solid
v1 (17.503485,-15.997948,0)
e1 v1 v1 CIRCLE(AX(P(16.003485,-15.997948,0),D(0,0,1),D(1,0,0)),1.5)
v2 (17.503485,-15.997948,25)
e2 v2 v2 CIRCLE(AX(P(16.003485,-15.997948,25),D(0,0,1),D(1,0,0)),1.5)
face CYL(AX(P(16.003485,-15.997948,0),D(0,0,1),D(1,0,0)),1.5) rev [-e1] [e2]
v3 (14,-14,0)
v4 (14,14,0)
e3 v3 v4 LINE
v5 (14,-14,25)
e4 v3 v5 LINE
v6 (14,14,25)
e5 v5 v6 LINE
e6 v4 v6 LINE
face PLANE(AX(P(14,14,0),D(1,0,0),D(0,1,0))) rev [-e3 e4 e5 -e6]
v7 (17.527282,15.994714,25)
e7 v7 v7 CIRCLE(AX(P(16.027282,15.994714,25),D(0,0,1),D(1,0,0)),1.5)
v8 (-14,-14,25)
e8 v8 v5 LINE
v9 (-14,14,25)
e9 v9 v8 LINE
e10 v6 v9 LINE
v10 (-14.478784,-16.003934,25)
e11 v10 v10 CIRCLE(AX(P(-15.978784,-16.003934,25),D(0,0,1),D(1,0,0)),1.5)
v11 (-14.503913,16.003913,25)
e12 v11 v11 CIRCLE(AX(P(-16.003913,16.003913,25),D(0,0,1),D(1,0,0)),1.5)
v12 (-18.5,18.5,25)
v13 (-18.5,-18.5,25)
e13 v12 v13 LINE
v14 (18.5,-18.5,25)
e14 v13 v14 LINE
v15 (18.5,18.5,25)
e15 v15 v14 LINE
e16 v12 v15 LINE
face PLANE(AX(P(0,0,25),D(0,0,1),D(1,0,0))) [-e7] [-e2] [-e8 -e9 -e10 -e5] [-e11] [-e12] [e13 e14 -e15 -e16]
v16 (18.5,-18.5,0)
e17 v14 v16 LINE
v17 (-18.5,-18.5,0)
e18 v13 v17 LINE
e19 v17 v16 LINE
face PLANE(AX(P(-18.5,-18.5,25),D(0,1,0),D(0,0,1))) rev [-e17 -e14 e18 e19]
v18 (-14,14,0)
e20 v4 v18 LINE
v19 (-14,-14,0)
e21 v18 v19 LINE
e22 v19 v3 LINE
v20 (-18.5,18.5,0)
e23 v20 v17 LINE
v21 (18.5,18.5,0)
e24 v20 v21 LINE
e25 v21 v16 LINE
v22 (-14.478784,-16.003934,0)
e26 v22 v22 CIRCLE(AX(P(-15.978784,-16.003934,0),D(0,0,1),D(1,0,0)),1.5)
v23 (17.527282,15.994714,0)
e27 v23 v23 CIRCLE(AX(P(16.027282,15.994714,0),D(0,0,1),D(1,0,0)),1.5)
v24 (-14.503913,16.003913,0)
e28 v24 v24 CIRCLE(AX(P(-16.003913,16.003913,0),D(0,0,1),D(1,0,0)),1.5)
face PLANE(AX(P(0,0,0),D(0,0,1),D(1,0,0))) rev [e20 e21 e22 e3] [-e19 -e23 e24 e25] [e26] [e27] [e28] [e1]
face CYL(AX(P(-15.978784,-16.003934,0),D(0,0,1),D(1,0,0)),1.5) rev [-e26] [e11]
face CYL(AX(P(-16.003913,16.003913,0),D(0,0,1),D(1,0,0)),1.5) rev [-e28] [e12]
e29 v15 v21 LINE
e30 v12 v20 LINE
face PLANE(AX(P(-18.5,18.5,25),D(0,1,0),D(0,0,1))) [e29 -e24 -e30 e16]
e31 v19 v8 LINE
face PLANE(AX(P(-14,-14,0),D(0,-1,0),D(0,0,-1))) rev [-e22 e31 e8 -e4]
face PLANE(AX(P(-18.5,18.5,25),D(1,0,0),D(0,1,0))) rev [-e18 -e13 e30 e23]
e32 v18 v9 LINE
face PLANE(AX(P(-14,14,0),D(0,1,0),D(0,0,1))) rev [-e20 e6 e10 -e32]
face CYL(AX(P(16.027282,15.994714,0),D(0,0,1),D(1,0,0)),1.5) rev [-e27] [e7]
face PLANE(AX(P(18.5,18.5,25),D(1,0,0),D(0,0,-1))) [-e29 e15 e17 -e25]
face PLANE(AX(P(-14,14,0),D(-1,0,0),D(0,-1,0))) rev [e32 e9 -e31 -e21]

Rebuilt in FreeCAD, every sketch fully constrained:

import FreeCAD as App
import Part
import Sketcher

V = App.Vector


def add_polygon(sketch, points):
    """Adds a closed chain of lines whose ends are joined by coincident constraints."""
    first, n = sketch.GeometryCount, len(points)
    for a, b in zip(points, points[1:] + points[:1]):
        sketch.addGeometry(Part.LineSegment(App.Vector(*a, 0), App.Vector(*b, 0)), False)
    for i in range(n):
        sketch.addConstraint(Sketcher.Constraint("Coincident", first + i, 2, first + (i + 1) % n, 1))

doc = App.newDocument("Part")
body = doc.addObject("PartDesign::Body", "Body")

sketch1 = doc.addObject("Sketcher::SketchObject", "Sketch")
body.addObject(sketch1)
sketch1.AttachmentSupport = (doc.XY_Plane, [""])
sketch1.MapMode = "FlatFace"
add_polygon(sketch1, [(-18, 18), (-18, -18), (18, -18), (18, 18)])
sketch1.addConstraint(Sketcher.Constraint("Vertical", 0))
sketch1.addConstraint(Sketcher.Constraint("Horizontal", 1))
sketch1.addConstraint(Sketcher.Constraint("Vertical", 2))
sketch1.addConstraint(Sketcher.Constraint("Horizontal", 3))
sketch1.addConstraint(Sketcher.Constraint("Symmetric", 0, 2, 2, 2, -1, 1))
sketch1.addConstraint(Sketcher.Constraint("Equal", 3, 0))
sketch1.addConstraint(Sketcher.Constraint("DistanceX", 1, 1, 1, 2, 37.0))
pad1 = doc.addObject("PartDesign::Pad", "Pad")
body.addObject(pad1)
pad1.Profile = sketch1
pad1.Length = 25

sketch2 = doc.addObject("Sketcher::SketchObject", "Sketch001")
body.addObject(sketch2)
sketch2.AttachmentSupport = (doc.XY_Plane, [""])
sketch2.MapMode = "FlatFace"
sketch2.AttachmentOffset = App.Placement(V(0, 0, 25), App.Rotation())
add_polygon(sketch2, [(-14, 14), (-14, -14), (14, -14), (14, 14)])
sketch2.addConstraint(Sketcher.Constraint("Vertical", 0))
sketch2.addConstraint(Sketcher.Constraint("Horizontal", 1))
sketch2.addConstraint(Sketcher.Constraint("Vertical", 2))
sketch2.addConstraint(Sketcher.Constraint("Horizontal", 3))
sketch2.addConstraint(Sketcher.Constraint("Symmetric", 0, 2, 2, 2, -1, 1))
sketch2.addConstraint(Sketcher.Constraint("Equal", 3, 0))
sketch2.addConstraint(Sketcher.Constraint("DistanceX", 1, 1, 1, 2, 28.0))
pocket1 = doc.addObject("PartDesign::Pocket", "Pocket")
body.addObject(pocket1)
pocket1.Profile = sketch2
pocket1.Type = "ThroughAll"

sketch3 = doc.addObject("Sketcher::SketchObject", "Sketch002")
body.addObject(sketch3)
sketch3.AttachmentSupport = (doc.XY_Plane, [""])
sketch3.MapMode = "FlatFace"
sketch3.AttachmentOffset = App.Placement(V(0, 0, 25), App.Rotation())
sketch3.addGeometry(Part.Circle(V(-16, 16, 0), V(0, 0, 1), 1.5), False)
sketch3.addGeometry(Part.Circle(V(16, 16, 0), V(0, 0, 1), 1.5), False)
sketch3.addGeometry(Part.Circle(V(16, -16, 0), V(0, 0, 1), 1.5), False)
sketch3.addGeometry(Part.Circle(V(-16, -16, 0), V(0, 0, 1), 1.5), False)
sketch3.addConstraint(Sketcher.Constraint("Equal", 0, 1))
sketch3.addConstraint(Sketcher.Constraint("Equal", 1, 2))
sketch3.addConstraint(Sketcher.Constraint("Equal", 2, 3))
sketch3.addConstraint(Sketcher.Constraint("Diameter", 0, 3.0))
sketch3.addConstraint(Sketcher.Constraint("DistanceY", 1, 3, 0, 3, 0.0092))
sketch3.addConstraint(Sketcher.Constraint("DistanceX", 0, 3, 2, 3, 32.007398))
sketch3.addConstraint(Sketcher.Constraint("DistanceX", -1, 1, 1, 3, 16.027282))
sketch3.addConstraint(Sketcher.Constraint("DistanceY", 2, 3, 1, 3, 31.992661))
sketch3.addConstraint(Sketcher.Constraint("DistanceX", 3, 3, 2, 3, 31.982269))
sketch3.addConstraint(Sketcher.Constraint("DistanceX", 0, 3, -1, 1, 16.003913))
sketch3.addConstraint(Sketcher.Constraint("DistanceY", -1, 1, 0, 3, 16.003913))
sketch3.addConstraint(Sketcher.Constraint("DistanceY", 3, 3, -1, 1, 16.003934))
pocket2 = doc.addObject("PartDesign::Pocket", "Pocket001")
body.addObject(pocket2)
pocket2.Profile = sketch3
pocket2.Type = "ThroughAll"

doc.recompute()
